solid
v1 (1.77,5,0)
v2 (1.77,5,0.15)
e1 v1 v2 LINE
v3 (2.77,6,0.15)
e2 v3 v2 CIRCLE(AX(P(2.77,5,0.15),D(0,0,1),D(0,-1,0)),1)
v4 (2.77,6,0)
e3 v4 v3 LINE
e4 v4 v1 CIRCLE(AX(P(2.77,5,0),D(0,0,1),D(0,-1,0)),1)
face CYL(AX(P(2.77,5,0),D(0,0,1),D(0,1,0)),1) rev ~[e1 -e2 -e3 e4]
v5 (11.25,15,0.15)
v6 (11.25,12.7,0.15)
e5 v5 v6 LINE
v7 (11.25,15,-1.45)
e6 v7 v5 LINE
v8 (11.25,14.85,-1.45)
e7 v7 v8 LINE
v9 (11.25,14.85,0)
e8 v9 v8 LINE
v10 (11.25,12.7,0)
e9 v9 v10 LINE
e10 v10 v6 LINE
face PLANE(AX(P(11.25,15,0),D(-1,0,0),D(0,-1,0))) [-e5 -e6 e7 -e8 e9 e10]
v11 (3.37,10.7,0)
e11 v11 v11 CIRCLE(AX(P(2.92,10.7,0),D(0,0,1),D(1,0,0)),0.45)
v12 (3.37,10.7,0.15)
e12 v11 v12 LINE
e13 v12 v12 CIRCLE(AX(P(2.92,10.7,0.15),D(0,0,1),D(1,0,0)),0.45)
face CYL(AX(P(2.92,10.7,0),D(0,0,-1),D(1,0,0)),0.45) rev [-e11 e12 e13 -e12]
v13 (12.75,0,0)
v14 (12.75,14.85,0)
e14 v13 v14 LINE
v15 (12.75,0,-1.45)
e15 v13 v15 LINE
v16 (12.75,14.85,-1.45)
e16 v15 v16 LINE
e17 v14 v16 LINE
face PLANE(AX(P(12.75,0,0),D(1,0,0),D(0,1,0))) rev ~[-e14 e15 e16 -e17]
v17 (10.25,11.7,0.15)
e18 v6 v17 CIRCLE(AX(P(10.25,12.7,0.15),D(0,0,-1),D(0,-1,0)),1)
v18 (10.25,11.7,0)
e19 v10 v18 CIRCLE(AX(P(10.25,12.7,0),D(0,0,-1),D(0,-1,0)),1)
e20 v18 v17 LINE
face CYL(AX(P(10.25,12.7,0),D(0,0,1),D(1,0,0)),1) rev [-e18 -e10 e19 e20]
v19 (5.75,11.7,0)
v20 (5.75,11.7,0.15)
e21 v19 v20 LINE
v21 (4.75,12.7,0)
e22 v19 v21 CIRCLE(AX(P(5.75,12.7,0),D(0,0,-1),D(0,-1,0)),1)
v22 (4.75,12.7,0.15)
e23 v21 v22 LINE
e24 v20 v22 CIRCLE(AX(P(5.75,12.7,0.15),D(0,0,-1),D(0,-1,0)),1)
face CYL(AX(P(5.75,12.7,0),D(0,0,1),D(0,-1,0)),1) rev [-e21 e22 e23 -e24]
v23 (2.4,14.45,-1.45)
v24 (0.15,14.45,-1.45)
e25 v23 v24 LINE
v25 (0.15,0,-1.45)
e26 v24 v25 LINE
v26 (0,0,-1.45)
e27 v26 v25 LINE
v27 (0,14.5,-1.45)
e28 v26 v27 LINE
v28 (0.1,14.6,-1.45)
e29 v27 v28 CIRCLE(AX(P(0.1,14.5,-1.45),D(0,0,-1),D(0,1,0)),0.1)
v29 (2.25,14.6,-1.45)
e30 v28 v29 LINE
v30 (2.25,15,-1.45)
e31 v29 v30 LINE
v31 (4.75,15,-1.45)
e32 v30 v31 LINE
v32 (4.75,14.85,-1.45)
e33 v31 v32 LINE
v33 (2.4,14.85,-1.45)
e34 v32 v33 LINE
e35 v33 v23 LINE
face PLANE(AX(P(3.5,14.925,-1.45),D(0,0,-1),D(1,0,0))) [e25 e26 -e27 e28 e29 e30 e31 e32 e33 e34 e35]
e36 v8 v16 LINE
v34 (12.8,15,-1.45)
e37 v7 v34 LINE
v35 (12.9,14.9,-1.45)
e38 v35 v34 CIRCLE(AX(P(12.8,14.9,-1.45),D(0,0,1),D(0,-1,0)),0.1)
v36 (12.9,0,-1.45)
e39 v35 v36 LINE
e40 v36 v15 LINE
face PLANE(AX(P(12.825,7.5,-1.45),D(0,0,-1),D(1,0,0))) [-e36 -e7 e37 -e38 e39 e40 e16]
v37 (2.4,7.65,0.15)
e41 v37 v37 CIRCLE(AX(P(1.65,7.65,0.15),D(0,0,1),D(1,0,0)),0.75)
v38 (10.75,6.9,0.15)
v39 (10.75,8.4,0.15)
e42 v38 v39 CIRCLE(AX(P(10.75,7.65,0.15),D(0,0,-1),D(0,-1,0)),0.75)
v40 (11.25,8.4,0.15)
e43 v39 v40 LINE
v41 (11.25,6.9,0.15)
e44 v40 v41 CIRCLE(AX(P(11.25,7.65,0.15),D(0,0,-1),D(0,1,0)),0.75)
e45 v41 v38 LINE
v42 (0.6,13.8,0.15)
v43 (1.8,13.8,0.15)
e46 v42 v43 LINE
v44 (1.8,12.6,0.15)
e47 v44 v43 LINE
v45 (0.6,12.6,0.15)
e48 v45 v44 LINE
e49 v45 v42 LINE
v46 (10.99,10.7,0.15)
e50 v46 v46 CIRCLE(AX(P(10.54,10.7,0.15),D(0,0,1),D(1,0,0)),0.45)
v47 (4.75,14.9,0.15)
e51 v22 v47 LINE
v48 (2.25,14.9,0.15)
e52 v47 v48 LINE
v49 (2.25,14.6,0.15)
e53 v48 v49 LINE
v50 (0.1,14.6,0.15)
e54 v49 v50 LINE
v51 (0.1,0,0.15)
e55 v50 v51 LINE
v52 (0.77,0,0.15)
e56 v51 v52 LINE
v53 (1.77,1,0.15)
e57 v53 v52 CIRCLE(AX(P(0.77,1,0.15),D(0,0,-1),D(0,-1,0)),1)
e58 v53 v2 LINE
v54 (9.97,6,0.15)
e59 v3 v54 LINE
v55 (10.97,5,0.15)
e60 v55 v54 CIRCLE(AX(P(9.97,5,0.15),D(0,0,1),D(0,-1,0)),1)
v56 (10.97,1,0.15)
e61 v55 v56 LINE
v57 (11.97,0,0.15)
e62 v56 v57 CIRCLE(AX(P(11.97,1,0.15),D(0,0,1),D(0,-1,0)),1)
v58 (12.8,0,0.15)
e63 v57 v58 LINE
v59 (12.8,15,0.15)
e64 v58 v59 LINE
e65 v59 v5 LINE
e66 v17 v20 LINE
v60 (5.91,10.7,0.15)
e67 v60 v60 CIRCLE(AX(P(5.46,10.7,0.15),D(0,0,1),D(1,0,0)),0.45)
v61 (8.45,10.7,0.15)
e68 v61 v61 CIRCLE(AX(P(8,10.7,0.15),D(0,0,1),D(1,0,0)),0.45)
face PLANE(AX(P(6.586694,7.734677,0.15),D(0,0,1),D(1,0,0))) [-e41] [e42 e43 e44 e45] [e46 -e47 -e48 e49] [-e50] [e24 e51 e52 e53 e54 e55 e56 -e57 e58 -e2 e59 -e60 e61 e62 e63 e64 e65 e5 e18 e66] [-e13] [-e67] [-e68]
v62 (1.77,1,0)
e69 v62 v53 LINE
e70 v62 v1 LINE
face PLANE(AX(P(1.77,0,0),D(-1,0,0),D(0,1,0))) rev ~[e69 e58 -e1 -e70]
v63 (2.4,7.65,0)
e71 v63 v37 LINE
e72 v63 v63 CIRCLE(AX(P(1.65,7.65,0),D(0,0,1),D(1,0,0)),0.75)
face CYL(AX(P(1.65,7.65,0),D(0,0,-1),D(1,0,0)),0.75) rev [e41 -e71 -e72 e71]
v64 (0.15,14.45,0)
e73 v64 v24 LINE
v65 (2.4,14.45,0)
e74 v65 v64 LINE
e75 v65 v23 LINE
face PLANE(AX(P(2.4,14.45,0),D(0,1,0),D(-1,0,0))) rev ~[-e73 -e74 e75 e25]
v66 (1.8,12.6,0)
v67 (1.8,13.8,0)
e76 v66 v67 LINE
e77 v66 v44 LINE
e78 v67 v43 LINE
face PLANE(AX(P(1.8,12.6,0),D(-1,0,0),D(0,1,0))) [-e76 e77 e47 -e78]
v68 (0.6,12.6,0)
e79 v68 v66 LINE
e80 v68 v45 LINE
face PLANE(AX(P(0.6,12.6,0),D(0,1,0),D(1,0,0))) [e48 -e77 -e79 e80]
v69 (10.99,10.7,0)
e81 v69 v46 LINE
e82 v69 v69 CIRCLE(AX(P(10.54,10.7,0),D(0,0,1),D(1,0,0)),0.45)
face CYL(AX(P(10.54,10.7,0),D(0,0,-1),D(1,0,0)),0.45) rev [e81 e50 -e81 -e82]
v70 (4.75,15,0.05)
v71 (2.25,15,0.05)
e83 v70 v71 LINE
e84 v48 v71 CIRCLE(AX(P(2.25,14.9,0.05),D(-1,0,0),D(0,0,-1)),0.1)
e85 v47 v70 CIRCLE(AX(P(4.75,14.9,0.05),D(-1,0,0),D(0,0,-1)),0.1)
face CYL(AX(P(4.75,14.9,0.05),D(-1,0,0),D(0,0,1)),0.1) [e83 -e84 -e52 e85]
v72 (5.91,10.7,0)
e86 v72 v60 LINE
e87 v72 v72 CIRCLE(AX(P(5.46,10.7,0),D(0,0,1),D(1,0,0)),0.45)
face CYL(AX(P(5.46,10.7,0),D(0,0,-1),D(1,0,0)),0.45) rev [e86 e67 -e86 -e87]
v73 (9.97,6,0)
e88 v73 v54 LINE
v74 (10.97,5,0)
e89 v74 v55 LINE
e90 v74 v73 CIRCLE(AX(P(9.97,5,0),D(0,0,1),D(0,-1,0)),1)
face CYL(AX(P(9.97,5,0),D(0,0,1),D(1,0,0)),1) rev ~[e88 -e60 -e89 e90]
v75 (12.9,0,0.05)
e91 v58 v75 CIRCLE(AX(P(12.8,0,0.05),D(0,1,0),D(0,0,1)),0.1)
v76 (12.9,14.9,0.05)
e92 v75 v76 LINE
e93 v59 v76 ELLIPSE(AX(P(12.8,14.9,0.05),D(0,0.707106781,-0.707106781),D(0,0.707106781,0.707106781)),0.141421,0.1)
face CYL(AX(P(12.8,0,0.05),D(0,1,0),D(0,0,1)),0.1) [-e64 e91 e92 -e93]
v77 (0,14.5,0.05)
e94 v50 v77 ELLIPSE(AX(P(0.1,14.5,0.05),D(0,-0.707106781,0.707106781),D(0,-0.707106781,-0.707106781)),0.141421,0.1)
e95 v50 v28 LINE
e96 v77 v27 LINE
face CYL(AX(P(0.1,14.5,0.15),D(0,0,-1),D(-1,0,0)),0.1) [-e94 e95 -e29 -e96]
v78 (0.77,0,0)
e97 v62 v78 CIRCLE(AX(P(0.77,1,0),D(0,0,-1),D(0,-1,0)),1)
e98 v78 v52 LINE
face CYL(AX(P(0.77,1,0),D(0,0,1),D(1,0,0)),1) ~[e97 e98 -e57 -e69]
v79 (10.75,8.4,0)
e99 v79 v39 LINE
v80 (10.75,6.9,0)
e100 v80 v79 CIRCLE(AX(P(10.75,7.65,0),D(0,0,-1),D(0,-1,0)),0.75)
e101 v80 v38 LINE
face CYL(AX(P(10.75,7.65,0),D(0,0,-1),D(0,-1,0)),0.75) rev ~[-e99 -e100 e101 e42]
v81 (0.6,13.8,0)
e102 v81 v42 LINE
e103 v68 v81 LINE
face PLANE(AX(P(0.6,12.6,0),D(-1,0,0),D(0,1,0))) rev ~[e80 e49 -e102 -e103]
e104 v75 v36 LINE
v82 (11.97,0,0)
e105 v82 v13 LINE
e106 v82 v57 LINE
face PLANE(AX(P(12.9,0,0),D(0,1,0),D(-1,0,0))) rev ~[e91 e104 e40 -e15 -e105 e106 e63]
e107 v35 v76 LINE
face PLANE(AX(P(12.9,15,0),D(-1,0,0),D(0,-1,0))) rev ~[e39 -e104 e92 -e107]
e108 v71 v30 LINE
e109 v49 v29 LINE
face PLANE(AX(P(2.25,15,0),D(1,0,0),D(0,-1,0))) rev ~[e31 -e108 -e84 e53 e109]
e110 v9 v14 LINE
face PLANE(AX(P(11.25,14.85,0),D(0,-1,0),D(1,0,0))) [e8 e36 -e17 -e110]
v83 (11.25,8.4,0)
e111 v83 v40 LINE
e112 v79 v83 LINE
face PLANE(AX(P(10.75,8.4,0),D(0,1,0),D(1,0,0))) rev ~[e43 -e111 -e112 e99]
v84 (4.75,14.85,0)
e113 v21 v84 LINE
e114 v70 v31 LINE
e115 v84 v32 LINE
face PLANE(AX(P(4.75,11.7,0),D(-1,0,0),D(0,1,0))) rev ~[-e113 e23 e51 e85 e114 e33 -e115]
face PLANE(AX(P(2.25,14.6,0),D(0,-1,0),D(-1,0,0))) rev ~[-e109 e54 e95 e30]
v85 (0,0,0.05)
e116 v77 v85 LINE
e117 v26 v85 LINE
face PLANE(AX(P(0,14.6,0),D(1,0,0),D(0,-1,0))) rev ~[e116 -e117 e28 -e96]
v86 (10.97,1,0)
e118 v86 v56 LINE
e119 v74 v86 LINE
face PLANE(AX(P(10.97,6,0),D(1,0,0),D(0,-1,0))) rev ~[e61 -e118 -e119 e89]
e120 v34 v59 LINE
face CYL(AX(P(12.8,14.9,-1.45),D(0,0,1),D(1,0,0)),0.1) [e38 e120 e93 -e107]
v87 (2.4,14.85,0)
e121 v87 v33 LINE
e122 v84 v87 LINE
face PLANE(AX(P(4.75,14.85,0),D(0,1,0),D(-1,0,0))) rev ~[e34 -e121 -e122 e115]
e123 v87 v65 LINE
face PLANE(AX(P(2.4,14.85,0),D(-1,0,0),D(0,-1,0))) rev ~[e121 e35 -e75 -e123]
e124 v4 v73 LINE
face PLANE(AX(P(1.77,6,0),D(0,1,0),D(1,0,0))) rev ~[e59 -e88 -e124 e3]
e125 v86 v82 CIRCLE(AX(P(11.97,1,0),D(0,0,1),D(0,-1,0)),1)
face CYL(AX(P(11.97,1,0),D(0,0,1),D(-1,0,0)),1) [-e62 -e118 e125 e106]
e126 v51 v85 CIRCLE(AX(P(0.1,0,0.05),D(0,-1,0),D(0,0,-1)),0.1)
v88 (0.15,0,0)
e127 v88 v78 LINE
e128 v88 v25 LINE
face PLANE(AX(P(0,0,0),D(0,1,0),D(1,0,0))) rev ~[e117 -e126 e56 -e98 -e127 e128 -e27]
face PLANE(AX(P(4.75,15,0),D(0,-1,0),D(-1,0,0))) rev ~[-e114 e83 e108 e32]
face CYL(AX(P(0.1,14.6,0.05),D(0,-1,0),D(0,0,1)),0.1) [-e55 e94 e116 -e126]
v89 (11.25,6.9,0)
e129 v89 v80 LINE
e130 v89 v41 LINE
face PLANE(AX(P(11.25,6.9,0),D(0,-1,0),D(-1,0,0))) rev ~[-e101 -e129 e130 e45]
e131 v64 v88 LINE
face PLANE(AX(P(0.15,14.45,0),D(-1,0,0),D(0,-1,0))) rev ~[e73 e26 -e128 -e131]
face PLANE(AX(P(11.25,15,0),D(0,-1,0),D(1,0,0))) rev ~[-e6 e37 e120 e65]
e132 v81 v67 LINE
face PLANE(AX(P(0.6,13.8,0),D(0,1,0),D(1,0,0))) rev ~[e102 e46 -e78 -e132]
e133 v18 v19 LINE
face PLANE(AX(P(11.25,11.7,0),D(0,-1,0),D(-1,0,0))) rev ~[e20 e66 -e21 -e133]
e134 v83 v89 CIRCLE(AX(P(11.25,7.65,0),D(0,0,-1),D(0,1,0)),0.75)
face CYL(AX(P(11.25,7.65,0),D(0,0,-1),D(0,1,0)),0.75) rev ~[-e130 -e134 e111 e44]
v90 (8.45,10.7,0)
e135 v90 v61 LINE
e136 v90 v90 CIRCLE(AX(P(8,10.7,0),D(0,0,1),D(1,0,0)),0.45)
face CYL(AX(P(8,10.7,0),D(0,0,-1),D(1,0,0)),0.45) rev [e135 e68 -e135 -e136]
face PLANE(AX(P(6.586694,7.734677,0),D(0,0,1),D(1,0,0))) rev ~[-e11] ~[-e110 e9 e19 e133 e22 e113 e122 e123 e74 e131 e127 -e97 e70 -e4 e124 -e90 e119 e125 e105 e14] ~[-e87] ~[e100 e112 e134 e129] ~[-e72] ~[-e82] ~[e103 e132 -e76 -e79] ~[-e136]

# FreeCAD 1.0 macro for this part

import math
import FreeCAD as App
import Part
import Sketcher
from FreeCAD import Vector
Q = App.Units.Quantity


def edges_at(feature, points):
    """Names of the edges that pass closest to the given points."""
    edges = feature.Shape.Edges
    near = lambda p: min(range(len(edges)), key=lambda i: edges[i].distToShape(Part.Vertex(*p))[0])
    return sorted({f"Edge{near(p) + 1}" for p in points})


def add_polygon(sketch, points):
    """Adds a closed chain of lines whose ends are joined by coincident constraints."""
    first, n = sketch.GeometryCount, len(points)
    for a, b in zip(points, points[1:] + points[:1]):
        sketch.addGeometry(Part.LineSegment(App.Vector(*a, 0), App.Vector(*b, 0)), False)
    for i in range(n):
        sketch.addConstraint(Sketcher.Constraint("Coincident", first + i, 2, first + (i + 1) % n, 1))

doc = App.newDocument("Part")
params = doc.addObject("Spreadsheet::Sheet", "Params")
for row, (alias, value) in enumerate([
    ("sketch1_diameter", "1.5 mm"),
    ("sketch1_diameter2", "0.9 mm"),
    ("sketch1_height", "6 mm"),
    ("sketch1_height2", "15 mm"),
    ("sketch1_width", "9.2 mm"),
    ("pad1_length", "0.15 mm"),
    ("sketch2_height", "15 mm"),
    ("sketch2_width", "1.5 mm"),
    ("sketch2_width2", "2.5 mm"),
    ("sketch2_height2", "0.4 mm"),
    ("sketch2_width3", "0.15 mm"),
    ("pad2_length", "1.45 mm"),
    ("fillet_radius", "1 mm"),
    ("fillet2_radius", "0.1 mm"),
], start=1):
    params.set(f"A{row}", alias)
    params.set(f"B{row}", "=" + value)
    params.setAlias(f"B{row}", alias)

body = doc.addObject("PartDesign::Body", "Body")

# Sketch on XY plane
sketch1 = body.newObject("Sketcher::SketchObject", "Sketch")
sketch1.AttachmentSupport = (doc.getObject("XY_Plane"), [""])
sketch1.MapMode = "FlatFace"
add_polygon(sketch1, [(0, 14.6), (0, 0), (1.77, 0), (1.77, 6), (10.97, 6), (10.97, 0), (12.9, 0), (12.9, 15), (11.25, 15), (11.25, 11.7), (4.75, 11.7), (4.75, 15), (2.25, 15), (2.25, 14.6)])  # lines 0-13
sketch1.addGeometry(Part.Circle(Vector(1.65, 7.65, 0), Vector(0, 0, 1), 0.75), False)  # 14
sketch1.addGeometry(Part.LineSegment(Vector(10.75, 8.4, 0), Vector(11.25, 8.4, 0)), False)  # 15
sketch1.addGeometry(Part.ArcOfCircle(Part.Circle(Vector(11.25, 7.65, 0), Vector(0, 0, 1), 0.75), math.radians(-90), math.radians(90)), False)  # 16
sketch1.addGeometry(Part.LineSegment(Vector(11.25, 6.9, 0), Vector(10.75, 6.9, 0)), False)  # 17
sketch1.addGeometry(Part.ArcOfCircle(Part.Circle(Vector(10.75, 7.65, 0), Vector(0, 0, 1), 0.75), math.radians(90), math.radians(270)), False)  # 18
sketch1.addGeometry(Part.Circle(Vector(2.92, 10.7, 0), Vector(0, 0, 1), 0.45), False)  # 19
sketch1.addGeometry(Part.Circle(Vector(5.46, 10.7, 0), Vector(0, 0, 1), 0.45), False)  # 20
add_polygon(sketch1, [(1.8, 12.6), (0.6, 12.6), (0.6, 13.8), (1.8, 13.8)])  # lines 21-24
sketch1.addGeometry(Part.Circle(Vector(8, 10.7, 0), Vector(0, 0, 1), 0.45), False)  # 25
sketch1.addGeometry(Part.Circle(Vector(10.54, 10.7, 0), Vector(0, 0, 1), 0.45), False)  # 26
sketch1.addConstraint([
    Sketcher.Constraint("Tangent", 15, 2, 16, 2),
    Sketcher.Constraint("Tangent", 16, 1, 17, 1),
    Sketcher.Constraint("Tangent", 17, 2, 18, 2),
    Sketcher.Constraint("Tangent", 18, 1, 15, 1),
    Sketcher.Constraint("Vertical", 0),
    Sketcher.Constraint("Horizontal", 1),
    Sketcher.Constraint("Vertical", 2),
    Sketcher.Constraint("Horizontal", 3),
    Sketcher.Constraint("Vertical", 4),
    Sketcher.Constraint("Horizontal", 5),
    Sketcher.Constraint("Vertical", 6),
    Sketcher.Constraint("Horizontal", 7),
    Sketcher.Constraint("Vertical", 8),
    Sketcher.Constraint("Horizontal", 9),
    Sketcher.Constraint("Vertical", 10),
    Sketcher.Constraint("Horizontal", 11),
    Sketcher.Constraint("Vertical", 12),
    Sketcher.Constraint("Horizontal", 13),
    Sketcher.Constraint("Horizontal", 15),
    Sketcher.Constraint("Horizontal", 17),
    Sketcher.Constraint("Horizontal", 21),
    Sketcher.Constraint("Vertical", 22),
    Sketcher.Constraint("Horizontal", 23),
    Sketcher.Constraint("Vertical", 24),
    Sketcher.Constraint("Coincident", 0, 2, -1, 1),
    Sketcher.Constraint("Equal", 14, 16),
    Sketcher.Constraint("Equal", 19, 20),
    Sketcher.Constraint("Equal", 20, 25),
    Sketcher.Constraint("Equal", 25, 26),
    Sketcher.Constraint("PointOnObject", 4, 2, -1),
    Sketcher.Constraint("Horizontal", 14, 3, 16, 3),
    Sketcher.Constraint("Horizontal", 19, 3, 20, 3),
    Sketcher.Constraint("Horizontal", 20, 3, 25, 3),
    Sketcher.Constraint("Horizontal", 25, 3, 26, 3),
    Sketcher.Constraint("Horizontal", 7, 2, 10, 2),
    Sketcher.Constraint("Vertical", 16, 3, 7, 2),
    Sketcher.Constraint("Equal", 23, 22),
    Sketcher.Constraint("Diameter", 14, Q("1.5 mm")),
    Sketcher.Constraint("Diameter", 19, Q("0.9 mm")),
    Sketcher.Constraint("DistanceY", 2, 1, 2, 2, Q("6 mm")),
    Sketcher.Constraint("DistanceY", 6, 1, 6, 2, Q("15 mm")),
    Sketcher.Constraint("DistanceX", 3, 1, 3, 2, Q("9.2 mm")),
    Sketcher.Constraint("DistanceX", 9, 2, 9, 1, Q("6.5 mm")),
    Sketcher.Constraint("DistanceX", 11, 2, 11, 1, Q("2.5 mm")),
    Sketcher.Constraint("DistanceX", 15, 1, 15, 2, Q("0.5 mm")),
    Sketcher.Constraint("DistanceX", 21, 2, 21, 1, Q("1.2 mm")),
    Sketcher.Constraint("DistanceY", 0, 2, 0, 1, Q("14.6 mm")),
    Sketcher.Constraint("DistanceY", 8, 2, 8, 1, Q("3.3 mm")),
    Sketcher.Constraint("DistanceX", -1, 1, 25, 3, Q("8 mm")),
    Sketcher.Constraint("DistanceY", 26, 3, 8, 2, Q("1 mm")),
    Sketcher.Constraint("DistanceY", 21, 2, 13, 2, Q("2 mm")),
    Sketcher.Constraint("DistanceX", 1, 1, 1, 2, Q("1.77 mm")),
    Sketcher.Constraint("DistanceX", 5, 1, 5, 2, Q("1.93 mm")),
    Sketcher.Constraint("DistanceX", 7, 2, 7, 1, Q("1.65 mm")),
    Sketcher.Constraint("DistanceY", -1, 1, 15, 2, Q("8.4 mm")),
    Sketcher.Constraint("DistanceX", -1, 1, 21, 2, Q("0.6 mm")),
    Sketcher.Constraint("DistanceX", 14, 3, 16, 3, Q("9.6 mm")),
    Sketcher.Constraint("DistanceX", -1, 1, 19, 3, Q("2.92 mm")),
    Sketcher.Constraint("DistanceX", -1, 1, 20, 3, Q("5.46 mm")),
    Sketcher.Constraint("DistanceX", -1, 1, 26, 3, Q("10.54 mm")),
])
sketch1.setExpression("Constraints[55]", "Params.sketch1_diameter")
sketch1.setExpression("Constraints[56]", "Params.sketch1_diameter2")
sketch1.setExpression("Constraints[57]", "Params.sketch1_height")
sketch1.setExpression("Constraints[58]", "Params.sketch1_height2")
sketch1.setExpression("Constraints[59]", "Params.sketch1_width")
pad1 = body.newObject("PartDesign::Pad", "Pad")
pad1.Profile = sketch1
pad1.setExpression("Length", "Params.pad1_length")

# Sketch on XY plane
sketch2 = body.newObject("Sketcher::SketchObject", "Sketch001")
sketch2.AttachmentSupport = (doc.getObject("XY_Plane"), [""])
sketch2.MapMode = "FlatFace"
add_polygon(sketch2, [(12.9, 15), (12.9, 0), (12.75, 0), (12.75, 14.85), (11.25, 14.85), (11.25, 15)])  # lines 0-5
add_polygon(sketch2, [(4.75, 15), (4.75, 14.85), (2.4, 14.85), (2.4, 14.45), (0.15, 14.45), (0.15, 0), (0, 0), (0, 14.6), (2.25, 14.6), (2.25, 15)])  # lines 6-15
sketch2.addConstraint([
    Sketcher.Constraint("Vertical", 0),
    Sketcher.Constraint("Horizontal", 1),
    Sketcher.Constraint("Vertical", 2),
    Sketcher.Constraint("Horizontal", 3),
    Sketcher.Constraint("Vertical", 4),
    Sketcher.Constraint("Horizontal", 5),
    Sketcher.Constraint("Vertical", 6),
    Sketcher.Constraint("Horizontal", 7),
    Sketcher.Constraint("Vertical", 8),
    Sketcher.Constraint("Horizontal", 9),
    Sketcher.Constraint("Vertical", 10),
    Sketcher.Constraint("Horizontal", 11),
    Sketcher.Constraint("Vertical", 12),
    Sketcher.Constraint("Horizontal", 13),
    Sketcher.Constraint("Vertical", 14),
    Sketcher.Constraint("Horizontal", 15),
    Sketcher.Constraint("Coincident", 11, 2, -1, 1),
    Sketcher.Constraint("PointOnObject", 0, 2, -1),
    Sketcher.Constraint("Horizontal", 3, 2, 6, 2),
    Sketcher.Constraint("Horizontal", 5, 2, 14, 2),
    Sketcher.Constraint("Equal", 1, 11),
    Sketcher.Constraint("Equal", 9, 13),
    Sketcher.Constraint("Equal", 11, 4),
    Sketcher.Constraint("Equal", 8, 14),
    Sketcher.Constraint("DistanceY", 0, 2, 0, 1, Q("15 mm")),
    Sketcher.Constraint("DistanceX", 3, 2, 3, 1, Q("1.5 mm")),
    Sketcher.Constraint("DistanceX", 15, 1, 15, 2, Q("2.5 mm")),
    Sketcher.Constraint("DistanceY", 8, 2, 8, 1, Q("0.4 mm")),
    Sketcher.Constraint("DistanceX", 6, 2, 2, 2, Q("8 mm")),
    Sketcher.Constraint("DistanceX", 1, 2, 1, 1, Q("0.15 mm")),
    Sketcher.Constraint("DistanceX", 9, 2, 9, 1, Q("2.25 mm")),
])
sketch2.setExpression("Constraints[40]", "Params.sketch2_height")
sketch2.setExpression("Constraints[41]", "Params.sketch2_width")
sketch2.setExpression("Constraints[42]", "Params.sketch2_width2")
sketch2.setExpression("Constraints[43]", "Params.sketch2_height2")
sketch2.setExpression("Constraints[45]", "Params.sketch2_width3")
pad2 = body.newObject("PartDesign::Pad", "Pad001")
pad2.Profile = sketch2
pad2.setExpression("Length", "Params.pad2_length")
pad2.Reversed = True
doc.recompute()

fillet = body.newObject("PartDesign::Fillet", "Fillet")
fillet.Base = (pad2, edges_at(pad2, [
    (1.77, 6, 0.075),
    (1.77, 0, 0.075),
    (10.97, 6, 0.075),
    (10.97, 0, 0.075),
    (4.75, 11.7, 0.075),
    (11.25, 11.7, 0.075),
]))
fillet.setExpression("Radius", "Params.fillet_radius")
doc.recompute()

fillet2 = body.newObject("PartDesign::Fillet", "Fillet001")
fillet2.Base = (fillet, edges_at(fillet, [
    (12.9, 7.5, 0.15),
    (0, 7.3, 0.15),
    (3.5, 15, 0.15),
    (0, 14.6, -0.65),
    (12.9, 15, -0.65),
]))
fillet2.setExpression("Radius", "Params.fillet2_radius")

doc.recompute()
